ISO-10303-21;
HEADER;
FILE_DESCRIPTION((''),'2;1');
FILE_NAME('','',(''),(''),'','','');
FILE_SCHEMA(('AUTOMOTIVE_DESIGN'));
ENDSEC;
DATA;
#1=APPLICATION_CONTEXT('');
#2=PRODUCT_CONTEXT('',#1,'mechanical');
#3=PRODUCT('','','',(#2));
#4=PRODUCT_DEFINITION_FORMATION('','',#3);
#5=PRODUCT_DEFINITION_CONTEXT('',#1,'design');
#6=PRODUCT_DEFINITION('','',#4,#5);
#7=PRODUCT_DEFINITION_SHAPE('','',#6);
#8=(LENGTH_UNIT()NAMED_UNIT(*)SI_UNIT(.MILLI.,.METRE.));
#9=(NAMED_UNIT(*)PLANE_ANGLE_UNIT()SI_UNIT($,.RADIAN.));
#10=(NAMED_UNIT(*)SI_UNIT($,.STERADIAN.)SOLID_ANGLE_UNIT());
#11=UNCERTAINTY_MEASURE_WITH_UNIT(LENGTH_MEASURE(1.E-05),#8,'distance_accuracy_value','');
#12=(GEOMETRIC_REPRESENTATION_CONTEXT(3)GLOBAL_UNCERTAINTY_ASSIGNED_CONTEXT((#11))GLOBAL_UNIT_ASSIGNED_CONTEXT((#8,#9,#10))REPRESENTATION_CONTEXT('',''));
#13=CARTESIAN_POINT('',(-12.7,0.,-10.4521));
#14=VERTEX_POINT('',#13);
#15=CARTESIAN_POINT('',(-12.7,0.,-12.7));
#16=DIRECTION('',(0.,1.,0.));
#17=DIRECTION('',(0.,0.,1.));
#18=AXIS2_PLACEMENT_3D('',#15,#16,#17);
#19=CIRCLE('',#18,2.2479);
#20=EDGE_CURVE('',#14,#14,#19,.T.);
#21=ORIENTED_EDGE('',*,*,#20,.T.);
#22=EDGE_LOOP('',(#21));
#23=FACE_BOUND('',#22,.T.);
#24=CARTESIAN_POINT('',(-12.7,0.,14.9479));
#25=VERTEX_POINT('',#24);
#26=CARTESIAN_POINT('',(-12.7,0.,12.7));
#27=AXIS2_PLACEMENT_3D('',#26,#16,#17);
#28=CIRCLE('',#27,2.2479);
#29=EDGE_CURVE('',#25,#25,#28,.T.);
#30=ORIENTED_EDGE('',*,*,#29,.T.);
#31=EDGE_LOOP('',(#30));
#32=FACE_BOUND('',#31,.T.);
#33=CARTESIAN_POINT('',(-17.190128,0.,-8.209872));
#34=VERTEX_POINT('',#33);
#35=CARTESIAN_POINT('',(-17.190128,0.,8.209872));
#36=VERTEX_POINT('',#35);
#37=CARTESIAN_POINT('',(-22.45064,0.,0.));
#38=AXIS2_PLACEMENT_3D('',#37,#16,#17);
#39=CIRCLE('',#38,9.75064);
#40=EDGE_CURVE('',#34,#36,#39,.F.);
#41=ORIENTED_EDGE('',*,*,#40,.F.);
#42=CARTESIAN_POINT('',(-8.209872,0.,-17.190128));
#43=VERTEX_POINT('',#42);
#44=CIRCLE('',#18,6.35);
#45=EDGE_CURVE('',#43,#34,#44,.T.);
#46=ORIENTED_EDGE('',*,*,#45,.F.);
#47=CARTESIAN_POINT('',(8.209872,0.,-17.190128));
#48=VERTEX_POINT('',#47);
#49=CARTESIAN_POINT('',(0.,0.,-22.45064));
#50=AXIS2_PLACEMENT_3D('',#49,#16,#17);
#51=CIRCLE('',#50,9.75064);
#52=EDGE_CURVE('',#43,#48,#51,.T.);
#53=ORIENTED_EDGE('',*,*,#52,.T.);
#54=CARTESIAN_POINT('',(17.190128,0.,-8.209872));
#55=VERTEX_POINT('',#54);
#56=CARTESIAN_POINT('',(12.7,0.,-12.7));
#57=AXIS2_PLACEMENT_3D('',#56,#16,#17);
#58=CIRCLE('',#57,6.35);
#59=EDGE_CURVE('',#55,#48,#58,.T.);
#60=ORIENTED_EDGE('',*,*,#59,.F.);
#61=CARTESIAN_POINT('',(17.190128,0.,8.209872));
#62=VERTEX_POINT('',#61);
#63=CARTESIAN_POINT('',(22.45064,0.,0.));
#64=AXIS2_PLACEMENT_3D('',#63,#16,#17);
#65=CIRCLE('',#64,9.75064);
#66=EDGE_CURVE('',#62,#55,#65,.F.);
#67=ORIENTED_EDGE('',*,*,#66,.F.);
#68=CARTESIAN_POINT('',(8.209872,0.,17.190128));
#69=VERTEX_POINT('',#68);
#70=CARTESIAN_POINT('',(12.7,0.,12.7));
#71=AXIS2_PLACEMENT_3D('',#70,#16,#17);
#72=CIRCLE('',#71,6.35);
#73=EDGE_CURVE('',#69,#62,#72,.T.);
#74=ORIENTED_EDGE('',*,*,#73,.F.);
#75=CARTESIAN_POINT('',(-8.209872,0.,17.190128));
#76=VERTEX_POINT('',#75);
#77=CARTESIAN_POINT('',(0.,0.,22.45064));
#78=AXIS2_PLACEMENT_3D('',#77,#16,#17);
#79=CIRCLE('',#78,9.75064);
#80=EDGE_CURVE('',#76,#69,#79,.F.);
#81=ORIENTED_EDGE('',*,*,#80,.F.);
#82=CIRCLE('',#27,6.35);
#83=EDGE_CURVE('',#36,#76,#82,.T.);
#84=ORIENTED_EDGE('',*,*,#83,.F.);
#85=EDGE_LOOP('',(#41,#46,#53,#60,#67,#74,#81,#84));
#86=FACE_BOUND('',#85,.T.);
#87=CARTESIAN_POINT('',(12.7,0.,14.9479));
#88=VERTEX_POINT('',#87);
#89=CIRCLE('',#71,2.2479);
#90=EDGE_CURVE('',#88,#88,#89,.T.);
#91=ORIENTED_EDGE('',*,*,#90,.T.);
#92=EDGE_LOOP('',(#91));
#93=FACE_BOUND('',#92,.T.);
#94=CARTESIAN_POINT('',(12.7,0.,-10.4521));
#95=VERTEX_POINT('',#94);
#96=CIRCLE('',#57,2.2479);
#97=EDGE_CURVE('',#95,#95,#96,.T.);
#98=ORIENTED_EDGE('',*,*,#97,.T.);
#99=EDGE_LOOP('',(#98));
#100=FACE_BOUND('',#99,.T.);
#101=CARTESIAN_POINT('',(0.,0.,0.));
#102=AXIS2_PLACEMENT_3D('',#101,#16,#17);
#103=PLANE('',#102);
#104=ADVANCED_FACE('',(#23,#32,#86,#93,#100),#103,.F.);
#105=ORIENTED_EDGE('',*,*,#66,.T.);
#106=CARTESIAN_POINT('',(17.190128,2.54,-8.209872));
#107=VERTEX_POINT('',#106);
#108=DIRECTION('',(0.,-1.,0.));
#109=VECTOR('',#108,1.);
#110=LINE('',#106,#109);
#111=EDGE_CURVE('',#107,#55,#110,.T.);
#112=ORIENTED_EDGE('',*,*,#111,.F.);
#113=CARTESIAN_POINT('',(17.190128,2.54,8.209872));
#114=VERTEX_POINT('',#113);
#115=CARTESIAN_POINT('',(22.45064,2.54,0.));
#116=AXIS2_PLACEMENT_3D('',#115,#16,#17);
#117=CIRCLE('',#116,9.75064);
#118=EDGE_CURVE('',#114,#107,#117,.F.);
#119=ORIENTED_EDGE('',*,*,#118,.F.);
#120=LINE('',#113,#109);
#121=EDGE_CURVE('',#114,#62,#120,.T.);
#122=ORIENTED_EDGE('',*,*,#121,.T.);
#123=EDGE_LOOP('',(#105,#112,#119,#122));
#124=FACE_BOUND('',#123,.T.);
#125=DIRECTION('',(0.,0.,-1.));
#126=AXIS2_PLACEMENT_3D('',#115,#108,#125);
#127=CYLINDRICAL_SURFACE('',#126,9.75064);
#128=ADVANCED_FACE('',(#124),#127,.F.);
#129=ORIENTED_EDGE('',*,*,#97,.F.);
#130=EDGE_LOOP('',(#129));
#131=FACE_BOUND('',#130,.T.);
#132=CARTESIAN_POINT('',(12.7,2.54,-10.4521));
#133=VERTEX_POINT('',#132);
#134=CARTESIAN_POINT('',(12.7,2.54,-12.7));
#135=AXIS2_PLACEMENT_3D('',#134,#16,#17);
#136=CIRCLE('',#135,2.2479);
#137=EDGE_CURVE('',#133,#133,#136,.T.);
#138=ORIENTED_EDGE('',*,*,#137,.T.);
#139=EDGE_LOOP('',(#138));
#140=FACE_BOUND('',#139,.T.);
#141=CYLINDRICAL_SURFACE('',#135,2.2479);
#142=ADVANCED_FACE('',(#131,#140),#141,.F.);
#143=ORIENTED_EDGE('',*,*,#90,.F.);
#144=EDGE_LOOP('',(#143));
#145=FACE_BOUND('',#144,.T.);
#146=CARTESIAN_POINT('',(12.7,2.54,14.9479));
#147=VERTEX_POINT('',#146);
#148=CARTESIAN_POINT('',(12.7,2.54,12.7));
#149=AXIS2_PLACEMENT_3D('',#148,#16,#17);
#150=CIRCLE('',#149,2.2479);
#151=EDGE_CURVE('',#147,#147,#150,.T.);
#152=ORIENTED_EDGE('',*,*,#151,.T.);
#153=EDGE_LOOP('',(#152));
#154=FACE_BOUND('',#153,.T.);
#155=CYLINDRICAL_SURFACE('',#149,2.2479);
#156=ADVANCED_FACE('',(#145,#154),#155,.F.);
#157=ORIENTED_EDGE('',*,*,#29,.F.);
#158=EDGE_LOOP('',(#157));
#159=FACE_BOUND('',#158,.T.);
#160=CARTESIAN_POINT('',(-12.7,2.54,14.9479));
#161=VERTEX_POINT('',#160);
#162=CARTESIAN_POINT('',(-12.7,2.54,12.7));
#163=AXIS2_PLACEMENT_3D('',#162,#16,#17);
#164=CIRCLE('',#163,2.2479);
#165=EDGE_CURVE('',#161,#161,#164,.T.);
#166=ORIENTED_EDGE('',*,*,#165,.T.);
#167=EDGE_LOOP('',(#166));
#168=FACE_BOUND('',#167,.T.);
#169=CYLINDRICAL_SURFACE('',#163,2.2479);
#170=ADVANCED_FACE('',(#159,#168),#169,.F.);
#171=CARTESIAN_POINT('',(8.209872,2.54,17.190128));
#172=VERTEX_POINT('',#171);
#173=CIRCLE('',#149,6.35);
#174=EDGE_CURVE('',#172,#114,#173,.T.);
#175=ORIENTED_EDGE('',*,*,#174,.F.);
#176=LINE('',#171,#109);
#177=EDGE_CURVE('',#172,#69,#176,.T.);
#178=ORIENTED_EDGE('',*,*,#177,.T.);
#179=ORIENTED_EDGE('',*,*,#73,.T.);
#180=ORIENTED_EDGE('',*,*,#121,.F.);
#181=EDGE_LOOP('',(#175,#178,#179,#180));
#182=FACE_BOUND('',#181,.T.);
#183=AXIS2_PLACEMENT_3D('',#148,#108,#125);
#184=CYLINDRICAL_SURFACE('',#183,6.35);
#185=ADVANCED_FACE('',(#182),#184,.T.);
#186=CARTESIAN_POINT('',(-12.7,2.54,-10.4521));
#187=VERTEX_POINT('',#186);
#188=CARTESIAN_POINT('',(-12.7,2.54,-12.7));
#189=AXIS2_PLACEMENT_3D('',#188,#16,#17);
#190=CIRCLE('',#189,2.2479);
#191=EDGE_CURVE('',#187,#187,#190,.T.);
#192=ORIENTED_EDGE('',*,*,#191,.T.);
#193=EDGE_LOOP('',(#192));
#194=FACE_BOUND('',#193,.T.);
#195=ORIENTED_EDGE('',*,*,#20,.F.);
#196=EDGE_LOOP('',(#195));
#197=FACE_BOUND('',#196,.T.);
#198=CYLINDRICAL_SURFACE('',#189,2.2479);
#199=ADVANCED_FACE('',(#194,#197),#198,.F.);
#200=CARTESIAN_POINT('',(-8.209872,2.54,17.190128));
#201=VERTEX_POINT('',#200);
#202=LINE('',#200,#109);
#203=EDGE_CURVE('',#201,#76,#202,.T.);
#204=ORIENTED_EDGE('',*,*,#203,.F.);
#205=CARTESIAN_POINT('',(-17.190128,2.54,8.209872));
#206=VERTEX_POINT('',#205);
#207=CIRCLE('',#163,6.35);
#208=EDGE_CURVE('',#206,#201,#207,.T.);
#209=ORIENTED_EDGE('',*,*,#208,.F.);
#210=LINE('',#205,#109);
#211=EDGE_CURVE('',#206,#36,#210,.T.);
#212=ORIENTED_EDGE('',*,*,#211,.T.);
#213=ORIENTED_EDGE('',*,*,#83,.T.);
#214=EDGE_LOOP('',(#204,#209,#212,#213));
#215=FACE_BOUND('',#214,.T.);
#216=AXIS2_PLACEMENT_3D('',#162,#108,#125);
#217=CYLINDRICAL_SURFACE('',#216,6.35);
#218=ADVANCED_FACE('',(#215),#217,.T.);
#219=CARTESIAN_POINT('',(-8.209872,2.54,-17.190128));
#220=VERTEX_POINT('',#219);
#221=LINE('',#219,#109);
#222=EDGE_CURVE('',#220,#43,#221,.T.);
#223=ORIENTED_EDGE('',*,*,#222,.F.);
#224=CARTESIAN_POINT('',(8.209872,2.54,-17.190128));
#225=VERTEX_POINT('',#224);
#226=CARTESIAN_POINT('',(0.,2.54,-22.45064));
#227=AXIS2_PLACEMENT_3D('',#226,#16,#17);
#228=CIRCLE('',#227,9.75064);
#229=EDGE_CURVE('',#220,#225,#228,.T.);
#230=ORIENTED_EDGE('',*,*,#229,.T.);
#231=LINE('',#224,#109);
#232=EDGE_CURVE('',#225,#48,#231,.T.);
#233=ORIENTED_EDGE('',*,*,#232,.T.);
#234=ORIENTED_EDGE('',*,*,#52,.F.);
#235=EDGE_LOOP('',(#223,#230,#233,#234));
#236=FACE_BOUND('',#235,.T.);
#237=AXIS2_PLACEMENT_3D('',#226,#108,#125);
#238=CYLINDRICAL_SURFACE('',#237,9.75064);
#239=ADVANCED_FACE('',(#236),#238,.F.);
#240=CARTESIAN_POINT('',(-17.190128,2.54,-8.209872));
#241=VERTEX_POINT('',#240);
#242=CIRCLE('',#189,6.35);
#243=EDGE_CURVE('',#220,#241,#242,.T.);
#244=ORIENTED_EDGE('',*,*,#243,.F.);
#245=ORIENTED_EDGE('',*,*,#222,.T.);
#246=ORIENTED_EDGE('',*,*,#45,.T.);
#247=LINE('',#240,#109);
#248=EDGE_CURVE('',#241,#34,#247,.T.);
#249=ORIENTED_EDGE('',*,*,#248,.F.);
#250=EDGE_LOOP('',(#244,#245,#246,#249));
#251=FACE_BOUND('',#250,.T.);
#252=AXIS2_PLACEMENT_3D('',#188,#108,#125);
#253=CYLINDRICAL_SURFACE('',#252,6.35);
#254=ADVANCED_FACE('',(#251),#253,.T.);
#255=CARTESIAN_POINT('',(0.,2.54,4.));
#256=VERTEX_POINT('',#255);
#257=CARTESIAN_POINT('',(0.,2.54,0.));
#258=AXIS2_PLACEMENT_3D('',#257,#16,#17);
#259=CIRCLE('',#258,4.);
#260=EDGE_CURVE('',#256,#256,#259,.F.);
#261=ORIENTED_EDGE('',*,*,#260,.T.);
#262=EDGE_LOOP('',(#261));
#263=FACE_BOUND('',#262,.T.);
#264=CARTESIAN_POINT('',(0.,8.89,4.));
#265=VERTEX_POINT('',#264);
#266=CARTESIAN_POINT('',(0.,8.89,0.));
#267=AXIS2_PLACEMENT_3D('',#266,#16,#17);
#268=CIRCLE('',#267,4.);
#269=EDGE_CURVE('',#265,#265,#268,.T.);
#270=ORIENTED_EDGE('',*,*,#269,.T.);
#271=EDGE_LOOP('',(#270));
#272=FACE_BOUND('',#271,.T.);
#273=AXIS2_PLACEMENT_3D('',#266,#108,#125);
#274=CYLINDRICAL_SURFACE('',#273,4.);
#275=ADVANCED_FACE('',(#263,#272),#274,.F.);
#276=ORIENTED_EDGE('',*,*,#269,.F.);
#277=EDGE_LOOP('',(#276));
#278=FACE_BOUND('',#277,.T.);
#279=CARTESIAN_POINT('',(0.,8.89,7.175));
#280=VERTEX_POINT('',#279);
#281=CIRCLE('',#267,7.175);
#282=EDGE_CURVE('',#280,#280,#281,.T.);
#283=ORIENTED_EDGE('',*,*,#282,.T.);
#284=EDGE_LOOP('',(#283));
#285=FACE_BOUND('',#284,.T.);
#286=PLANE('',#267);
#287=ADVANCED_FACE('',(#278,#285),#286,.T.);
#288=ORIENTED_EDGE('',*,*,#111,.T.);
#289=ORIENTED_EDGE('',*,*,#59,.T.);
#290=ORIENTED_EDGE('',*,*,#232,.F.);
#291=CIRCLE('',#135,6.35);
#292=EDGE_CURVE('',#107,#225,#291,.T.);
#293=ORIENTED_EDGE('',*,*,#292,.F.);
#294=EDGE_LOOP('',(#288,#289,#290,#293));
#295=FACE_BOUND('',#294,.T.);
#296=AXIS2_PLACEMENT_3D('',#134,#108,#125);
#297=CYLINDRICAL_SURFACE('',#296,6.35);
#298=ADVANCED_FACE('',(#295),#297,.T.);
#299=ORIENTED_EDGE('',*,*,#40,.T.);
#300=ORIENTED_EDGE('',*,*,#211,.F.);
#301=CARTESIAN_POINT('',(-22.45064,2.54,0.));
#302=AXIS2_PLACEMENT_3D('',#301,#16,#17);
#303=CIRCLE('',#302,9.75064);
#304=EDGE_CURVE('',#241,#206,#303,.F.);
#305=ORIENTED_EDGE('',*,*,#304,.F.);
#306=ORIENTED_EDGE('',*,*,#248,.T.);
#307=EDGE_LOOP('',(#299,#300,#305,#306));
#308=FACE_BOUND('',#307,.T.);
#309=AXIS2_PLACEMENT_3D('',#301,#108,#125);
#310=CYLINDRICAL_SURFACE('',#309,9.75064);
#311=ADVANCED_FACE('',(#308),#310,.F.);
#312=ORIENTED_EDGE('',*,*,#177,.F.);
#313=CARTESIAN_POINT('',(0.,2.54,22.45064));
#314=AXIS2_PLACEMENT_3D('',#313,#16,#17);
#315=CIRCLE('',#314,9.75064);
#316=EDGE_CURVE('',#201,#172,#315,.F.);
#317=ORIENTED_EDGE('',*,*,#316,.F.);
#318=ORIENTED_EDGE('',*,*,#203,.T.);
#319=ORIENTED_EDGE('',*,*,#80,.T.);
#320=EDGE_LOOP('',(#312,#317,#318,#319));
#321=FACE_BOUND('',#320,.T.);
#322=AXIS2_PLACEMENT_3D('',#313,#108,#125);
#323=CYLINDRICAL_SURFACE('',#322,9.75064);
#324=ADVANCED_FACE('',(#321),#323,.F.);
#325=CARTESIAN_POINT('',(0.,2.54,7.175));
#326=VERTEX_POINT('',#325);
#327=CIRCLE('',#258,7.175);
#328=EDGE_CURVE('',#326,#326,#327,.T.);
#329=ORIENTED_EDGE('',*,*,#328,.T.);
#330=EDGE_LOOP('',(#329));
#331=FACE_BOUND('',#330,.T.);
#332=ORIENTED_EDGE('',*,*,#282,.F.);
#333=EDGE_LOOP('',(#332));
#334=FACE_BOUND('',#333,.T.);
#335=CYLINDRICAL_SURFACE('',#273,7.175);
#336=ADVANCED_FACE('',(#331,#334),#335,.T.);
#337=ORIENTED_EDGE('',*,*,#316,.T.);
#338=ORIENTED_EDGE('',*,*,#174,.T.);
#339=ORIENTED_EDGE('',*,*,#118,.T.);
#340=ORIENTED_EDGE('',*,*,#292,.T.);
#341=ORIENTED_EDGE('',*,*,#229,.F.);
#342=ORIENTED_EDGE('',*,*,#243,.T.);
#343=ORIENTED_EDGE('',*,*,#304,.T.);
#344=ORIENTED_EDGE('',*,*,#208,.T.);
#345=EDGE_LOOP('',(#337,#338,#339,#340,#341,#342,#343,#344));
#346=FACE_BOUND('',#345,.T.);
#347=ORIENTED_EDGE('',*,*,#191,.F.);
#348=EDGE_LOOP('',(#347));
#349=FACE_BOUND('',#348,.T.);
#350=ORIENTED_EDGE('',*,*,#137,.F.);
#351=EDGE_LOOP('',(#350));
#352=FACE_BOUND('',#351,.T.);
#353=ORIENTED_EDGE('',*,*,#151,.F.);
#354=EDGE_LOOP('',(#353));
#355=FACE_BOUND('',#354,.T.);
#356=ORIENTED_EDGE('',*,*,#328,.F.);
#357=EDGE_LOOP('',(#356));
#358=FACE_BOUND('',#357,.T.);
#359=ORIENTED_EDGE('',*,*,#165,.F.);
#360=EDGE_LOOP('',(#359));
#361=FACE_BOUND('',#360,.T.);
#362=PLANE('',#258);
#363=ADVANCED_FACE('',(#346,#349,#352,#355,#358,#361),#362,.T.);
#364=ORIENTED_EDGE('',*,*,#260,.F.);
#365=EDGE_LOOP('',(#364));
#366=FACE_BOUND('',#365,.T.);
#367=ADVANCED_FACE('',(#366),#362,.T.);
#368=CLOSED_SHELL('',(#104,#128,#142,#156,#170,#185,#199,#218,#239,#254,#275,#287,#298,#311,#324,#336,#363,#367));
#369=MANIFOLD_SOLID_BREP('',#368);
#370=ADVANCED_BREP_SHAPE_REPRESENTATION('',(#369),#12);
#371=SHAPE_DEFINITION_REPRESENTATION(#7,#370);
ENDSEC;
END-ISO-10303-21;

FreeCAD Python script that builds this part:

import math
import FreeCAD as App
import Part
import Sketcher
Q = App.Units.Quantity

doc = App.newDocument("Part")
body = doc.addObject("PartDesign::Body", "Body")

# Sketch on XZ plane
sketch1 = body.newObject("Sketcher::SketchObject", "Sketch")
sketch1.AttachmentSupport = (doc.getObject("XZ_Plane"), [""])
sketch1.MapMode = "FlatFace"
sketch1.addGeometry(Part.ArcOfCircle(Part.Circle(App.Vector(-22.5, 0, 0), App.Vector(0, 0, 1), 9.8), math.radians(47.62), math.radians(57.35)), False)
sketch1.addGeometry(Part.ArcOfCircle(Part.Circle(App.Vector(-12.7, 12.7, 0), App.Vector(0, 0, 1), 6.4), math.radians(45), math.radians(225)), False)
sketch1.addGeometry(Part.ArcOfCircle(Part.Circle(App.Vector(0, 22.5, 0), App.Vector(0, 0, 1), 9.8), math.radians(-147.35), math.radians(-137.62)), False)
sketch1.addGeometry(Part.ArcOfCircle(Part.Circle(App.Vector(0, 22.5, 0), App.Vector(0, 0, 1), 9.8), math.radians(-138), math.radians(-42)), False)
sketch1.addGeometry(Part.ArcOfCircle(Part.Circle(App.Vector(0, 22.5, 0), App.Vector(0, 0, 1), 9.8), math.radians(-42.38), math.radians(-32.65)), False)
sketch1.addGeometry(Part.ArcOfCircle(Part.Circle(App.Vector(12.7, 12.7, 0), App.Vector(0, 0, 1), 6.4), math.radians(0), math.radians(135)), False)
sketch1.addGeometry(Part.ArcOfCircle(Part.Circle(App.Vector(12.7, 12.7, 0), App.Vector(0, 0, 1), 6.4), math.radians(-45), math.radians(0)), False)
sketch1.addGeometry(Part.ArcOfCircle(Part.Circle(App.Vector(22.5, 0, 0), App.Vector(0, 0, 1), 9.8), math.radians(122.65), math.radians(132.38)), False)
sketch1.addGeometry(Part.ArcOfCircle(Part.Circle(App.Vector(22.5, 0, 0), App.Vector(0, 0, 1), 9.8), math.radians(132), math.radians(228)), False)
sketch1.addGeometry(Part.ArcOfCircle(Part.Circle(App.Vector(22.5, 0, 0), App.Vector(0, 0, 1), 9.8), math.radians(-132.38), math.radians(-122.65)), False)
sketch1.addGeometry(Part.ArcOfCircle(Part.Circle(App.Vector(12.7, -12.7, 0), App.Vector(0, 0, 1), 6.4), math.radians(0), math.radians(45)), False)
sketch1.addGeometry(Part.ArcOfCircle(Part.Circle(App.Vector(12.7, -12.7, 0), App.Vector(0, 0, 1), 6.4), math.radians(-135), math.radians(0)), False)
sketch1.addGeometry(Part.ArcOfCircle(Part.Circle(App.Vector(0, -22.5, 0), App.Vector(0, 0, 1), 9.8), math.radians(32.65), math.radians(42.38)), False)
sketch1.addGeometry(Part.ArcOfCircle(Part.Circle(App.Vector(0, -22.5, 0), App.Vector(0, 0, 1), 9.8), math.radians(42), math.radians(138)), False)
sketch1.addGeometry(Part.ArcOfCircle(Part.Circle(App.Vector(0, -22.5, 0), App.Vector(0, 0, 1), 9.8), math.radians(137.62), math.radians(147.35)), False)
sketch1.addGeometry(Part.ArcOfCircle(Part.Circle(App.Vector(-12.7, -12.7, 0), App.Vector(0, 0, 1), 6.4), math.radians(135), math.radians(315)), False)
sketch1.addGeometry(Part.ArcOfCircle(Part.Circle(App.Vector(-22.5, 0, 0), App.Vector(0, 0, 1), 9.8), math.radians(-57.35), math.radians(-47.62)), False)
sketch1.addGeometry(Part.ArcOfCircle(Part.Circle(App.Vector(-22.5, 0, 0), App.Vector(0, 0, 1), 9.8), math.radians(-48), math.radians(48)), False)
sketch1.addConstraint(Sketcher.Constraint("Coincident", 0, 2, 1, 2))
sketch1.addConstraint(Sketcher.Constraint("Coincident", 1, 1, 2, 1))
sketch1.addConstraint(Sketcher.Constraint("Tangent", 2, 2, 3, 1))
sketch1.addConstraint(Sketcher.Constraint("Tangent", 3, 2, 4, 1))
sketch1.addConstraint(Sketcher.Constraint("Coincident", 4, 2, 5, 2))
sketch1.addConstraint(Sketcher.Constraint("Tangent", 5, 1, 6, 2))
sketch1.addConstraint(Sketcher.Constraint("Coincident", 6, 1, 7, 1))
sketch1.addConstraint(Sketcher.Constraint("Tangent", 7, 2, 8, 1))
sketch1.addConstraint(Sketcher.Constraint("Tangent", 8, 2, 9, 1))
sketch1.addConstraint(Sketcher.Constraint("Coincident", 9, 2, 10, 2))
sketch1.addConstraint(Sketcher.Constraint("Tangent", 10, 1, 11, 2))
sketch1.addConstraint(Sketcher.Constraint("Coincident", 11, 1, 12, 1))
sketch1.addConstraint(Sketcher.Constraint("Tangent", 12, 2, 13, 1))
sketch1.addConstraint(Sketcher.Constraint("Tangent", 13, 2, 14, 1))
sketch1.addConstraint(Sketcher.Constraint("Coincident", 14, 2, 15, 2))
sketch1.addConstraint(Sketcher.Constraint("Coincident", 15, 1, 16, 1))
sketch1.addConstraint(Sketcher.Constraint("Tangent", 16, 2, 17, 1))
sketch1.addConstraint(Sketcher.Constraint("Tangent", 17, 2, 0, 1))
sketch1.addConstraint(Sketcher.Constraint("Coincident", 4, 3, 2, 3))
sketch1.addConstraint(Sketcher.Constraint("Coincident", 9, 3, 7, 3))
sketch1.addConstraint(Sketcher.Constraint("Coincident", 14, 3, 12, 3))
sketch1.addConstraint(Sketcher.Constraint("Coincident", 16, 3, 0, 3))
sketch1.addConstraint(Sketcher.Constraint("Equal", 0, 2))
sketch1.addConstraint(Sketcher.Constraint("Equal", 1, 5))
sketch1.addConstraint(Sketcher.Constraint("Equal", 5, 6))
sketch1.addConstraint(Sketcher.Constraint("Equal", 4, 7))
sketch1.addConstraint(Sketcher.Constraint("Equal", 6, 10))
sketch1.addConstraint(Sketcher.Constraint("Equal", 10, 11))
sketch1.addConstraint(Sketcher.Constraint("Equal", 9, 12))
sketch1.addConstraint(Sketcher.Constraint("Equal", 11, 15))
sketch1.addConstraint(Sketcher.Constraint("Symmetric", 0, 3, 7, 3, -1, 1))
sketch1.addConstraint(Sketcher.Constraint("Symmetric", 1, 3, 10, 3, -1, 1))
sketch1.addConstraint(Sketcher.Constraint("Symmetric", 2, 3, 12, 3, -1, 1))
sketch1.addConstraint(Sketcher.Constraint("Symmetric", 5, 3, 15, 3, -1, 1))
sketch1.addConstraint(Sketcher.Constraint("Symmetric", 1, 3, 5, 3, -2))
sketch1.addConstraint(Sketcher.Constraint("Symmetric", 2, 2, 3, 2, -2))
sketch1.addConstraint(Sketcher.Constraint("Symmetric", 8, 2, 16, 2, -2))
sketch1.addConstraint(Sketcher.Constraint("Horizontal", 6, 3, 5, 1))
sketch1.addConstraint(Sketcher.Constraint("Horizontal", 15, 3, 10, 1))
sketch1.addConstraint(Sketcher.Constraint("Horizontal", 12, 2, 13, 2))
sketch1.addConstraint(Sketcher.Constraint("Horizontal", 7, 2, 17, 2))
sketch1.addConstraint(Sketcher.Constraint("Vertical", 7, 2, 8, 2))
sketch1.addConstraint(Sketcher.Constraint("Vertical", 3, 2, 12, 2))
sketch1.addConstraint(Sketcher.Constraint("Radius", 1, Q("0.25 in")))
sketch1.addConstraint(Sketcher.Constraint("DistanceX", 1, 3, 5, 3, Q("1 in")))
sketch1.addConstraint(Sketcher.Constraint("DistanceY", 10, 3, 5, 3, Q("1 in")))
sketch1.addConstraint(Sketcher.Constraint("Radius", 0, 9.75064))
sketch1.addConstraint(Sketcher.Constraint("DistanceX", 0, 3, -1, 1, 22.45064))
sketch1.addConstraint(Sketcher.Constraint("DistanceY", -1, 1, 2, 3, 22.45064))
sketch1.addConstraint(Sketcher.Constraint("DistanceX", 15, 1, 13, 2, 9.98763))
sketch1.addConstraint(Sketcher.Constraint("DistanceX", -1, 1, 7, 2, 15.878045))
pad1 = body.newObject("PartDesign::Pad", "Pad")
pad1.Profile = sketch1
pad1.Length = Q("0.1 in")
pad1.Reversed = True

# Sketch on XZ plane
sketch2 = body.newObject("Sketcher::SketchObject", "Sketch001")
sketch2.AttachmentSupport = (doc.getObject("XZ_Plane"), [""])
sketch2.MapMode = "FlatFace"
sketch2.AttachmentOffset = App.Placement(App.Vector(0, 0, -0.1 * 25.4), App.Rotation())
sketch2.addGeometry(Part.Circle(App.Vector(0, 0, 0), App.Vector(0, 0, 1), 7.2), False)
sketch2.addGeometry(Part.Circle(App.Vector(0, 0, 0), App.Vector(0, 0, 1), 4), False)
sketch2.addConstraint(Sketcher.Constraint("Coincident", 0, 3, -1, 1))
sketch2.addConstraint(Sketcher.Constraint("Coincident", 1, 3, -1, 1))
sketch2.addConstraint(Sketcher.Constraint("Diameter", 0, 14.35))
sketch2.addConstraint(Sketcher.Constraint("Diameter", 1, 8.0))
pad2 = body.newObject("PartDesign::Pad", "Pad001")
pad2.Profile = sketch2
pad2.Length = Q("0.25 in")
pad2.Reversed = True

# Sketch on XZ plane
sketch3 = body.newObject("Sketcher::SketchObject", "Sketch002")
sketch3.AttachmentSupport = (doc.getObject("XZ_Plane"), [""])
sketch3.MapMode = "FlatFace"
sketch3.AttachmentOffset = App.Placement(App.Vector(0, 0, -0.1 * 25.4), App.Rotation())
sketch3.addGeometry(Part.Circle(App.Vector(-12.7, -12.7, 0), App.Vector(0, 0, 1), 2.2), False)
sketch3.addGeometry(Part.Circle(App.Vector(12.7, -12.7, 0), App.Vector(0, 0, 1), 2.2), False)
sketch3.addGeometry(Part.Circle(App.Vector(12.7, 12.7, 0), App.Vector(0, 0, 1), 2.2), False)
sketch3.addGeometry(Part.Circle(App.Vector(-12.7, 12.7, 0), App.Vector(0, 0, 1), 2.2), False)
sketch3.addConstraint(Sketcher.Constraint("Equal", 0, 1))
sketch3.addConstraint(Sketcher.Constraint("Equal", 1, 2))
sketch3.addConstraint(Sketcher.Constraint("Equal", 2, 3))
sketch3.addConstraint(Sketcher.Constraint("Symmetric", 0, 3, 2, 3, -1, 1))
sketch3.addConstraint(Sketcher.Constraint("Symmetric", 1, 3, 3, 3, -1, 1))
sketch3.addConstraint(Sketcher.Constraint("Symmetric", 0, 3, 1, 3, -2))
sketch3.addConstraint(Sketcher.Constraint("Diameter", 0, Q("0.177 in")))
sketch3.addConstraint(Sketcher.Constraint("DistanceX", 0, 3, 1, 3, Q("1 in")))
sketch3.addConstraint(Sketcher.Constraint("DistanceY", 1, 3, 2, 3, Q("1 in")))
doc.recompute()
hole = body.newObject("PartDesign::Hole", "Hole")
hole.Profile = sketch3
hole.ThreadType = "None"
hole.Diameter = Q("0.177 in")
hole.DepthType = "ThroughAll"
hole.Reversed = True

doc.recompute()
